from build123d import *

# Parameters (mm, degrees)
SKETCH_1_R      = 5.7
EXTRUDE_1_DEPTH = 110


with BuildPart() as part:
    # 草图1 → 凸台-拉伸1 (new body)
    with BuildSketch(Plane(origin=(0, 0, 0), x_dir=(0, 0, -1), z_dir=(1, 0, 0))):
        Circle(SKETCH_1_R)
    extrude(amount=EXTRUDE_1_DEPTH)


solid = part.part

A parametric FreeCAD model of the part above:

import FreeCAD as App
import Part
import Sketcher
from FreeCAD import Vector

doc = App.newDocument("Part")
body = doc.addObject("PartDesign::Body", "Body")

# Sketch on YZ plane
sketch1 = body.newObject("Sketcher::SketchObject", "Sketch")
sketch1.AttachmentSupport = (doc.getObject("YZ_Plane"), [""])
sketch1.MapMode = "FlatFace"
sketch1.addGeometry(Part.Circle(Vector(0, 0, 0), Vector(0, 0, 1), 6), False)
sketch1.addConstraint([
    Sketcher.Constraint("Coincident", 0, 3, -1, 1),
    Sketcher.Constraint("Diameter", 0, 11.4),
])
pad1 = body.newObject("PartDesign::Pad", "Pad")
pad1.Profile = sketch1
pad1.Length = 110

doc.recompute()
